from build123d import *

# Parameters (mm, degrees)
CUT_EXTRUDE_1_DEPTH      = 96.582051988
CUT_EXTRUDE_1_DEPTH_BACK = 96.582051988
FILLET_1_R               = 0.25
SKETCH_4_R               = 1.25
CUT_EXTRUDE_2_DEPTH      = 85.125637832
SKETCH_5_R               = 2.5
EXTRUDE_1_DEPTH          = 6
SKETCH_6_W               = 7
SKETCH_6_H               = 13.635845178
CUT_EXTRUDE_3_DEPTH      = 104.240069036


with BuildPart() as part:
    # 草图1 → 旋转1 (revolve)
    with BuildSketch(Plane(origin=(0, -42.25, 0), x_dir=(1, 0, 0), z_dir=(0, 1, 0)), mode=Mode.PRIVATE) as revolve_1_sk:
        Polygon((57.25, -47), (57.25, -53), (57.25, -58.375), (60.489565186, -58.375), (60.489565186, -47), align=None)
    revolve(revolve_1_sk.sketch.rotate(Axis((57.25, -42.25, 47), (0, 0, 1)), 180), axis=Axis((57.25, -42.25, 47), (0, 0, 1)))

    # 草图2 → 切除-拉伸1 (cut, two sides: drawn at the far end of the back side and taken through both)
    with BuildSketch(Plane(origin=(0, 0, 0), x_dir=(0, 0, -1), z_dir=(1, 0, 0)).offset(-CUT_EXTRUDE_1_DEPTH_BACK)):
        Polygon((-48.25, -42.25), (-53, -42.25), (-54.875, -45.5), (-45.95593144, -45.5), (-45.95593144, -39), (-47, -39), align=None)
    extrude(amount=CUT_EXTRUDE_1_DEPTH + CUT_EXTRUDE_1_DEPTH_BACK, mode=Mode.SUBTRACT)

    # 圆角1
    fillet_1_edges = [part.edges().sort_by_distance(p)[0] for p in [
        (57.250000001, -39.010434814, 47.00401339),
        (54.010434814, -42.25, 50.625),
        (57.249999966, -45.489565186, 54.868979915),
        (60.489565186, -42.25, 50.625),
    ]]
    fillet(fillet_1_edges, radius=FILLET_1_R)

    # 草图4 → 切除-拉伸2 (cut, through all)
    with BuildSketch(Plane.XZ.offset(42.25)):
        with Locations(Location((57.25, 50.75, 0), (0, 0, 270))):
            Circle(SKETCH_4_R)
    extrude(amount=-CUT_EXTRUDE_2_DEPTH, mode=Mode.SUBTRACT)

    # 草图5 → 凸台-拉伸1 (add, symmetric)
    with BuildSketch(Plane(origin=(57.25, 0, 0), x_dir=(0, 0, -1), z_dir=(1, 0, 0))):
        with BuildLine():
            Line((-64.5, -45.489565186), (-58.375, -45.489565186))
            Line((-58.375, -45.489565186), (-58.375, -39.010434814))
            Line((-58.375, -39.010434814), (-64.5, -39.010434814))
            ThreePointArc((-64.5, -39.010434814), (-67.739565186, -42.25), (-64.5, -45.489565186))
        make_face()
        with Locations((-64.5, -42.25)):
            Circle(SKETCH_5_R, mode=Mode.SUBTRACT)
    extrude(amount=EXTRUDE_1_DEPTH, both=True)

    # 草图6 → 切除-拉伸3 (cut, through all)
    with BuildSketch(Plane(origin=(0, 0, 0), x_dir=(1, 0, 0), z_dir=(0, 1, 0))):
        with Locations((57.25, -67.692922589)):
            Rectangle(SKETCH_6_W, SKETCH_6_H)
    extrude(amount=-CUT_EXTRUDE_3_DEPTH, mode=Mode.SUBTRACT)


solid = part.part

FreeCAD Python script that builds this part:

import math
import FreeCAD as App
import Part
import Sketcher
from FreeCAD import Vector
Q = App.Units.Quantity


def edges_at(feature, points):
    """Names of the edges that pass closest to the given points."""
    edges = feature.Shape.Edges
    near = lambda p: min(range(len(edges)), key=lambda i: edges[i].distToShape(Part.Vertex(*p))[0])
    return sorted({f"Edge{near(p) + 1}" for p in points})

doc = App.newDocument("Part")
body = doc.addObject("PartDesign::Body", "Body")

sketch1 = doc.addObject("Sketcher::SketchObject", "Sketch")
body.addObject(sketch1)
sketch1.AttachmentSupport = (doc.XZ_Plane, [""])
sketch1.MapMode = "FlatFace"
sketch1.AttachmentOffset = App.Placement(Vector(0, 0, 42.25), App.Rotation())
sketch1.addGeometry(Part.LineSegment(Vector(57.25, 47, 0), Vector(57.25, 58.375, 0)), False)
sketch1.addGeometry(Part.LineSegment(Vector(57.25, 58.375, 0), Vector(60.489565, 58.375, 0)), False)
sketch1.addGeometry(Part.LineSegment(Vector(60.489565, 58.375, 0), Vector(60.489565, 47, 0)), False)
sketch1.addGeometry(Part.LineSegment(Vector(60.489565, 47, 0), Vector(57.25, 47, 0)), False)
sketch1.addGeometry(Part.LineSegment(Vector(57.25, 47, 0), Vector(57.25, 58.375, 0)), True)
sketch1.addConstraint(Sketcher.Constraint("Coincident", 0, 2, 1, 1))
sketch1.addConstraint(Sketcher.Constraint("Coincident", 1, 2, 2, 1))
sketch1.addConstraint(Sketcher.Constraint("Coincident", 2, 2, 3, 1))
sketch1.addConstraint(Sketcher.Constraint("Coincident", 3, 2, 0, 1))
sketch1.addConstraint(Sketcher.Constraint("Vertical", 0))
sketch1.addConstraint(Sketcher.Constraint("Horizontal", 1))
sketch1.addConstraint(Sketcher.Constraint("Vertical", 2))
sketch1.addConstraint(Sketcher.Constraint("Horizontal", 3))
sketch1.addConstraint(Sketcher.Constraint("Vertical", 4))
sketch1.addConstraint(Sketcher.Constraint("Coincident", 4, 1, 3, 2))
sketch1.addConstraint(Sketcher.Constraint("Horizontal", 1, 2, 4, 2))
sketch1.addConstraint(Sketcher.Constraint("DistanceY", -1, 1, 2, 2, Q("47 mm")))
sketch1.addConstraint(Sketcher.Constraint("DistanceY", 0, 1, 0, 2, Q("11.375 mm")))
sketch1.addConstraint(Sketcher.Constraint("DistanceX", -1, 1, 0, 2, Q("57.25 mm")))
sketch1.addConstraint(Sketcher.Constraint("DistanceX", 1, 1, 1, 2, Q("3.239565 mm")))
revolution = doc.addObject("PartDesign::Revolution", "Revolution")
body.addObject(revolution)
revolution.Profile = sketch1
revolution.ReferenceAxis = (sketch1, ["Axis0"])
revolution.Angle = 360

sketch2 = doc.addObject("Sketcher::SketchObject", "Sketch001")
body.addObject(sketch2)
sketch2.AttachmentSupport = (doc.YZ_Plane, [""])
sketch2.MapMode = "FlatFace"
sketch2.addGeometry(Part.LineSegment(Vector(-42.25, 48.25, 0), Vector(-42.25, 53, 0)), False)
sketch2.addGeometry(Part.LineSegment(Vector(-42.25, 53, 0), Vector(-45.5, 54.875, 0)), False)
sketch2.addGeometry(Part.LineSegment(Vector(-45.5, 54.875, 0), Vector(-45.5, 45.955931, 0)), False)
sketch2.addGeometry(Part.LineSegment(Vector(-45.5, 45.955931, 0), Vector(-39, 45.955931, 0)), False)
sketch2.addGeometry(Part.LineSegment(Vector(-39, 45.955931, 0), Vector(-39, 47, 0)), False)
sketch2.addGeometry(Part.LineSegment(Vector(-39, 47, 0), Vector(-42.25, 48.25, 0)), False)
sketch2.addConstraint(Sketcher.Constraint("Coincident", 0, 2, 1, 1))
sketch2.addConstraint(Sketcher.Constraint("Coincident", 1, 2, 2, 1))
sketch2.addConstraint(Sketcher.Constraint("Coincident", 2, 2, 3, 1))
sketch2.addConstraint(Sketcher.Constraint("Coincident", 3, 2, 4, 1))
sketch2.addConstraint(Sketcher.Constraint("Coincident", 4, 2, 5, 1))
sketch2.addConstraint(Sketcher.Constraint("Coincident", 5, 2, 0, 1))
sketch2.addConstraint(Sketcher.Constraint("Vertical", 0))
sketch2.addConstraint(Sketcher.Constraint("Vertical", 2))
sketch2.addConstraint(Sketcher.Constraint("Horizontal", 3))
sketch2.addConstraint(Sketcher.Constraint("Vertical", 4))
sketch2.addConstraint(Sketcher.Constraint("DistanceX", 3, 1, 3, 2, Q("6.5 mm")))
sketch2.addConstraint(Sketcher.Constraint("DistanceY", -1, 1, 0, 2, Q("53 mm")))
sketch2.addConstraint(Sketcher.Constraint("DistanceX", 3, 2, -1, 1, Q("39 mm")))
sketch2.addConstraint(Sketcher.Constraint("DistanceY", -1, 1, 4, 2, Q("47 mm")))
sketch2.addConstraint(Sketcher.Constraint("DistanceY", 0, 1, 0, 2, Q("4.75 mm")))
sketch2.addConstraint(Sketcher.Constraint("DistanceX", 0, 2, -1, 1, Q("42.25 mm")))
sketch2.addConstraint(Sketcher.Constraint("DistanceY", -1, 1, 1, 2, Q("54.875 mm")))
sketch2.addConstraint(Sketcher.Constraint("DistanceY", 2, 2, 2, 1, Q("8.919069 mm")))
pocket1 = doc.addObject("PartDesign::Pocket", "Pocket")
body.addObject(pocket1)
pocket1.Profile = sketch2
pocket1.Type = "ThroughAll"
pocket1.Midplane = True
doc.recompute()

fillet = doc.addObject("PartDesign::Fillet", "Fillet")
body.addObject(fillet)
fillet.Base = (pocket1, edges_at(pocket1, [
    (57.25, -39.01, 47.004),
    (54.01, -42.25, 50.625),
    (57.25, -45.49, 54.869),
    (60.49, -42.25, 50.625),
]))
fillet.Radius = 0.25

sketch3 = doc.addObject("Sketcher::SketchObject", "Sketch002")
body.addObject(sketch3)
sketch3.AttachmentSupport = (doc.XZ_Plane, [""])
sketch3.MapMode = "FlatFace"
sketch3.AttachmentOffset = App.Placement(Vector(0, 0, 42.25), App.Rotation())
sketch3.addGeometry(Part.Circle(Vector(57.25, 50.75, 0), Vector(0, 0, 1), 1.25), False)
sketch3.addConstraint(Sketcher.Constraint("Diameter", 0, Q("2.5 mm")))
sketch3.addConstraint(Sketcher.Constraint("DistanceX", -1, 1, 0, 3, Q("57.25 mm")))
sketch3.addConstraint(Sketcher.Constraint("DistanceY", -1, 1, 0, 3, Q("50.75 mm")))
pocket2 = doc.addObject("PartDesign::Pocket", "Pocket001")
body.addObject(pocket2)
pocket2.Profile = sketch3
pocket2.Type = "ThroughAll"

sketch4 = doc.addObject("Sketcher::SketchObject", "Sketch003")
body.addObject(sketch4)
sketch4.AttachmentSupport = (doc.YZ_Plane, [""])
sketch4.MapMode = "FlatFace"
sketch4.AttachmentOffset = App.Placement(Vector(0, 0, 57.25), App.Rotation())
sketch4.addGeometry(Part.LineSegment(Vector(-45.489565, 64.5, 0), Vector(-45.489565, 58.375, 0)), False)
sketch4.addGeometry(Part.LineSegment(Vector(-45.489565, 58.375, 0), Vector(-39.010435, 58.375, 0)), False)
sketch4.addGeometry(Part.LineSegment(Vector(-39.010435, 58.375, 0), Vector(-39.010435, 64.5, 0)), False)
sketch4.addGeometry(Part.ArcOfCircle(Part.Circle(Vector(-42.25, 64.5, 0), Vector(0, 0, 1), 3.239565), math.radians(0), math.radians(180)), False)
sketch4.addGeometry(Part.Circle(Vector(-42.25, 64.5, 0), Vector(0, 0, 1), 2.5), False)
sketch4.addConstraint(Sketcher.Constraint("Coincident", 0, 2, 1, 1))
sketch4.addConstraint(Sketcher.Constraint("Coincident", 1, 2, 2, 1))
sketch4.addConstraint(Sketcher.Constraint("Tangent", 2, 2, 3, 1))
sketch4.addConstraint(Sketcher.Constraint("Tangent", 3, 2, 0, 1))
sketch4.addConstraint(Sketcher.Constraint("Vertical", 0))
sketch4.addConstraint(Sketcher.Constraint("Horizontal", 1))
sketch4.addConstraint(Sketcher.Constraint("Vertical", 2))
sketch4.addConstraint(Sketcher.Constraint("Coincident", 4, 3, 3, 3))
sketch4.addConstraint(Sketcher.Constraint("Diameter", 4, Q("5 mm")))
sketch4.addConstraint(Sketcher.Constraint("DistanceY", -1, 1, 3, 3, Q("64.5 mm")))
sketch4.addConstraint(Sketcher.Constraint("DistanceY", 0, 2, 0, 1, Q("6.125 mm")))
sketch4.addConstraint(Sketcher.Constraint("DistanceX", 3, 3, -1, 1, Q("42.25 mm")))
sketch4.addConstraint(Sketcher.Constraint("Radius", 3, Q("3.239565 mm")))
pad1 = doc.addObject("PartDesign::Pad", "Pad")
body.addObject(pad1)
pad1.Profile = sketch4
pad1.Length = 12
pad1.Midplane = True

sketch5 = doc.addObject("Sketcher::SketchObject", "Sketch004")
body.addObject(sketch5)
sketch5.AttachmentSupport = (doc.XZ_Plane, [""])
sketch5.MapMode = "FlatFace"
sketch5.addGeometry(Part.LineSegment(Vector(53.75, 60.875, 0), Vector(53.75, 74.510845, 0)), False)
sketch5.addGeometry(Part.LineSegment(Vector(53.75, 74.510845, 0), Vector(60.75, 74.510845, 0)), False)
sketch5.addGeometry(Part.LineSegment(Vector(60.75, 74.510845, 0), Vector(60.75, 60.875, 0)), False)
sketch5.addGeometry(Part.LineSegment(Vector(60.75, 60.875, 0), Vector(53.75, 60.875, 0)), False)
sketch5.addConstraint(Sketcher.Constraint("Coincident", 0, 2, 1, 1))
sketch5.addConstraint(Sketcher.Constraint("Coincident", 1, 2, 2, 1))
sketch5.addConstraint(Sketcher.Constraint("Coincident", 2, 2, 3, 1))
sketch5.addConstraint(Sketcher.Constraint("Coincident", 3, 2, 0, 1))
sketch5.addConstraint(Sketcher.Constraint("Vertical", 0))
sketch5.addConstraint(Sketcher.Constraint("Horizontal", 1))
sketch5.addConstraint(Sketcher.Constraint("Vertical", 2))
sketch5.addConstraint(Sketcher.Constraint("Horizontal", 3))
sketch5.addConstraint(Sketcher.Constraint("DistanceX", 1, 1, 1, 2, Q("7 mm")))
sketch5.addConstraint(Sketcher.Constraint("DistanceX", -1, 1, 0, 2, Q("53.75 mm")))
sketch5.addConstraint(Sketcher.Constraint("DistanceY", -1, 1, 2, 2, Q("60.875 mm")))
sketch5.addConstraint(Sketcher.Constraint("DistanceY", 0, 1, 0, 2, Q("13.635845 mm")))
pocket3 = doc.addObject("PartDesign::Pocket", "Pocket002")
body.addObject(pocket3)
pocket3.Profile = sketch5
pocket3.Type = "ThroughAll"
pocket3.Reversed = True

doc.recompute()
